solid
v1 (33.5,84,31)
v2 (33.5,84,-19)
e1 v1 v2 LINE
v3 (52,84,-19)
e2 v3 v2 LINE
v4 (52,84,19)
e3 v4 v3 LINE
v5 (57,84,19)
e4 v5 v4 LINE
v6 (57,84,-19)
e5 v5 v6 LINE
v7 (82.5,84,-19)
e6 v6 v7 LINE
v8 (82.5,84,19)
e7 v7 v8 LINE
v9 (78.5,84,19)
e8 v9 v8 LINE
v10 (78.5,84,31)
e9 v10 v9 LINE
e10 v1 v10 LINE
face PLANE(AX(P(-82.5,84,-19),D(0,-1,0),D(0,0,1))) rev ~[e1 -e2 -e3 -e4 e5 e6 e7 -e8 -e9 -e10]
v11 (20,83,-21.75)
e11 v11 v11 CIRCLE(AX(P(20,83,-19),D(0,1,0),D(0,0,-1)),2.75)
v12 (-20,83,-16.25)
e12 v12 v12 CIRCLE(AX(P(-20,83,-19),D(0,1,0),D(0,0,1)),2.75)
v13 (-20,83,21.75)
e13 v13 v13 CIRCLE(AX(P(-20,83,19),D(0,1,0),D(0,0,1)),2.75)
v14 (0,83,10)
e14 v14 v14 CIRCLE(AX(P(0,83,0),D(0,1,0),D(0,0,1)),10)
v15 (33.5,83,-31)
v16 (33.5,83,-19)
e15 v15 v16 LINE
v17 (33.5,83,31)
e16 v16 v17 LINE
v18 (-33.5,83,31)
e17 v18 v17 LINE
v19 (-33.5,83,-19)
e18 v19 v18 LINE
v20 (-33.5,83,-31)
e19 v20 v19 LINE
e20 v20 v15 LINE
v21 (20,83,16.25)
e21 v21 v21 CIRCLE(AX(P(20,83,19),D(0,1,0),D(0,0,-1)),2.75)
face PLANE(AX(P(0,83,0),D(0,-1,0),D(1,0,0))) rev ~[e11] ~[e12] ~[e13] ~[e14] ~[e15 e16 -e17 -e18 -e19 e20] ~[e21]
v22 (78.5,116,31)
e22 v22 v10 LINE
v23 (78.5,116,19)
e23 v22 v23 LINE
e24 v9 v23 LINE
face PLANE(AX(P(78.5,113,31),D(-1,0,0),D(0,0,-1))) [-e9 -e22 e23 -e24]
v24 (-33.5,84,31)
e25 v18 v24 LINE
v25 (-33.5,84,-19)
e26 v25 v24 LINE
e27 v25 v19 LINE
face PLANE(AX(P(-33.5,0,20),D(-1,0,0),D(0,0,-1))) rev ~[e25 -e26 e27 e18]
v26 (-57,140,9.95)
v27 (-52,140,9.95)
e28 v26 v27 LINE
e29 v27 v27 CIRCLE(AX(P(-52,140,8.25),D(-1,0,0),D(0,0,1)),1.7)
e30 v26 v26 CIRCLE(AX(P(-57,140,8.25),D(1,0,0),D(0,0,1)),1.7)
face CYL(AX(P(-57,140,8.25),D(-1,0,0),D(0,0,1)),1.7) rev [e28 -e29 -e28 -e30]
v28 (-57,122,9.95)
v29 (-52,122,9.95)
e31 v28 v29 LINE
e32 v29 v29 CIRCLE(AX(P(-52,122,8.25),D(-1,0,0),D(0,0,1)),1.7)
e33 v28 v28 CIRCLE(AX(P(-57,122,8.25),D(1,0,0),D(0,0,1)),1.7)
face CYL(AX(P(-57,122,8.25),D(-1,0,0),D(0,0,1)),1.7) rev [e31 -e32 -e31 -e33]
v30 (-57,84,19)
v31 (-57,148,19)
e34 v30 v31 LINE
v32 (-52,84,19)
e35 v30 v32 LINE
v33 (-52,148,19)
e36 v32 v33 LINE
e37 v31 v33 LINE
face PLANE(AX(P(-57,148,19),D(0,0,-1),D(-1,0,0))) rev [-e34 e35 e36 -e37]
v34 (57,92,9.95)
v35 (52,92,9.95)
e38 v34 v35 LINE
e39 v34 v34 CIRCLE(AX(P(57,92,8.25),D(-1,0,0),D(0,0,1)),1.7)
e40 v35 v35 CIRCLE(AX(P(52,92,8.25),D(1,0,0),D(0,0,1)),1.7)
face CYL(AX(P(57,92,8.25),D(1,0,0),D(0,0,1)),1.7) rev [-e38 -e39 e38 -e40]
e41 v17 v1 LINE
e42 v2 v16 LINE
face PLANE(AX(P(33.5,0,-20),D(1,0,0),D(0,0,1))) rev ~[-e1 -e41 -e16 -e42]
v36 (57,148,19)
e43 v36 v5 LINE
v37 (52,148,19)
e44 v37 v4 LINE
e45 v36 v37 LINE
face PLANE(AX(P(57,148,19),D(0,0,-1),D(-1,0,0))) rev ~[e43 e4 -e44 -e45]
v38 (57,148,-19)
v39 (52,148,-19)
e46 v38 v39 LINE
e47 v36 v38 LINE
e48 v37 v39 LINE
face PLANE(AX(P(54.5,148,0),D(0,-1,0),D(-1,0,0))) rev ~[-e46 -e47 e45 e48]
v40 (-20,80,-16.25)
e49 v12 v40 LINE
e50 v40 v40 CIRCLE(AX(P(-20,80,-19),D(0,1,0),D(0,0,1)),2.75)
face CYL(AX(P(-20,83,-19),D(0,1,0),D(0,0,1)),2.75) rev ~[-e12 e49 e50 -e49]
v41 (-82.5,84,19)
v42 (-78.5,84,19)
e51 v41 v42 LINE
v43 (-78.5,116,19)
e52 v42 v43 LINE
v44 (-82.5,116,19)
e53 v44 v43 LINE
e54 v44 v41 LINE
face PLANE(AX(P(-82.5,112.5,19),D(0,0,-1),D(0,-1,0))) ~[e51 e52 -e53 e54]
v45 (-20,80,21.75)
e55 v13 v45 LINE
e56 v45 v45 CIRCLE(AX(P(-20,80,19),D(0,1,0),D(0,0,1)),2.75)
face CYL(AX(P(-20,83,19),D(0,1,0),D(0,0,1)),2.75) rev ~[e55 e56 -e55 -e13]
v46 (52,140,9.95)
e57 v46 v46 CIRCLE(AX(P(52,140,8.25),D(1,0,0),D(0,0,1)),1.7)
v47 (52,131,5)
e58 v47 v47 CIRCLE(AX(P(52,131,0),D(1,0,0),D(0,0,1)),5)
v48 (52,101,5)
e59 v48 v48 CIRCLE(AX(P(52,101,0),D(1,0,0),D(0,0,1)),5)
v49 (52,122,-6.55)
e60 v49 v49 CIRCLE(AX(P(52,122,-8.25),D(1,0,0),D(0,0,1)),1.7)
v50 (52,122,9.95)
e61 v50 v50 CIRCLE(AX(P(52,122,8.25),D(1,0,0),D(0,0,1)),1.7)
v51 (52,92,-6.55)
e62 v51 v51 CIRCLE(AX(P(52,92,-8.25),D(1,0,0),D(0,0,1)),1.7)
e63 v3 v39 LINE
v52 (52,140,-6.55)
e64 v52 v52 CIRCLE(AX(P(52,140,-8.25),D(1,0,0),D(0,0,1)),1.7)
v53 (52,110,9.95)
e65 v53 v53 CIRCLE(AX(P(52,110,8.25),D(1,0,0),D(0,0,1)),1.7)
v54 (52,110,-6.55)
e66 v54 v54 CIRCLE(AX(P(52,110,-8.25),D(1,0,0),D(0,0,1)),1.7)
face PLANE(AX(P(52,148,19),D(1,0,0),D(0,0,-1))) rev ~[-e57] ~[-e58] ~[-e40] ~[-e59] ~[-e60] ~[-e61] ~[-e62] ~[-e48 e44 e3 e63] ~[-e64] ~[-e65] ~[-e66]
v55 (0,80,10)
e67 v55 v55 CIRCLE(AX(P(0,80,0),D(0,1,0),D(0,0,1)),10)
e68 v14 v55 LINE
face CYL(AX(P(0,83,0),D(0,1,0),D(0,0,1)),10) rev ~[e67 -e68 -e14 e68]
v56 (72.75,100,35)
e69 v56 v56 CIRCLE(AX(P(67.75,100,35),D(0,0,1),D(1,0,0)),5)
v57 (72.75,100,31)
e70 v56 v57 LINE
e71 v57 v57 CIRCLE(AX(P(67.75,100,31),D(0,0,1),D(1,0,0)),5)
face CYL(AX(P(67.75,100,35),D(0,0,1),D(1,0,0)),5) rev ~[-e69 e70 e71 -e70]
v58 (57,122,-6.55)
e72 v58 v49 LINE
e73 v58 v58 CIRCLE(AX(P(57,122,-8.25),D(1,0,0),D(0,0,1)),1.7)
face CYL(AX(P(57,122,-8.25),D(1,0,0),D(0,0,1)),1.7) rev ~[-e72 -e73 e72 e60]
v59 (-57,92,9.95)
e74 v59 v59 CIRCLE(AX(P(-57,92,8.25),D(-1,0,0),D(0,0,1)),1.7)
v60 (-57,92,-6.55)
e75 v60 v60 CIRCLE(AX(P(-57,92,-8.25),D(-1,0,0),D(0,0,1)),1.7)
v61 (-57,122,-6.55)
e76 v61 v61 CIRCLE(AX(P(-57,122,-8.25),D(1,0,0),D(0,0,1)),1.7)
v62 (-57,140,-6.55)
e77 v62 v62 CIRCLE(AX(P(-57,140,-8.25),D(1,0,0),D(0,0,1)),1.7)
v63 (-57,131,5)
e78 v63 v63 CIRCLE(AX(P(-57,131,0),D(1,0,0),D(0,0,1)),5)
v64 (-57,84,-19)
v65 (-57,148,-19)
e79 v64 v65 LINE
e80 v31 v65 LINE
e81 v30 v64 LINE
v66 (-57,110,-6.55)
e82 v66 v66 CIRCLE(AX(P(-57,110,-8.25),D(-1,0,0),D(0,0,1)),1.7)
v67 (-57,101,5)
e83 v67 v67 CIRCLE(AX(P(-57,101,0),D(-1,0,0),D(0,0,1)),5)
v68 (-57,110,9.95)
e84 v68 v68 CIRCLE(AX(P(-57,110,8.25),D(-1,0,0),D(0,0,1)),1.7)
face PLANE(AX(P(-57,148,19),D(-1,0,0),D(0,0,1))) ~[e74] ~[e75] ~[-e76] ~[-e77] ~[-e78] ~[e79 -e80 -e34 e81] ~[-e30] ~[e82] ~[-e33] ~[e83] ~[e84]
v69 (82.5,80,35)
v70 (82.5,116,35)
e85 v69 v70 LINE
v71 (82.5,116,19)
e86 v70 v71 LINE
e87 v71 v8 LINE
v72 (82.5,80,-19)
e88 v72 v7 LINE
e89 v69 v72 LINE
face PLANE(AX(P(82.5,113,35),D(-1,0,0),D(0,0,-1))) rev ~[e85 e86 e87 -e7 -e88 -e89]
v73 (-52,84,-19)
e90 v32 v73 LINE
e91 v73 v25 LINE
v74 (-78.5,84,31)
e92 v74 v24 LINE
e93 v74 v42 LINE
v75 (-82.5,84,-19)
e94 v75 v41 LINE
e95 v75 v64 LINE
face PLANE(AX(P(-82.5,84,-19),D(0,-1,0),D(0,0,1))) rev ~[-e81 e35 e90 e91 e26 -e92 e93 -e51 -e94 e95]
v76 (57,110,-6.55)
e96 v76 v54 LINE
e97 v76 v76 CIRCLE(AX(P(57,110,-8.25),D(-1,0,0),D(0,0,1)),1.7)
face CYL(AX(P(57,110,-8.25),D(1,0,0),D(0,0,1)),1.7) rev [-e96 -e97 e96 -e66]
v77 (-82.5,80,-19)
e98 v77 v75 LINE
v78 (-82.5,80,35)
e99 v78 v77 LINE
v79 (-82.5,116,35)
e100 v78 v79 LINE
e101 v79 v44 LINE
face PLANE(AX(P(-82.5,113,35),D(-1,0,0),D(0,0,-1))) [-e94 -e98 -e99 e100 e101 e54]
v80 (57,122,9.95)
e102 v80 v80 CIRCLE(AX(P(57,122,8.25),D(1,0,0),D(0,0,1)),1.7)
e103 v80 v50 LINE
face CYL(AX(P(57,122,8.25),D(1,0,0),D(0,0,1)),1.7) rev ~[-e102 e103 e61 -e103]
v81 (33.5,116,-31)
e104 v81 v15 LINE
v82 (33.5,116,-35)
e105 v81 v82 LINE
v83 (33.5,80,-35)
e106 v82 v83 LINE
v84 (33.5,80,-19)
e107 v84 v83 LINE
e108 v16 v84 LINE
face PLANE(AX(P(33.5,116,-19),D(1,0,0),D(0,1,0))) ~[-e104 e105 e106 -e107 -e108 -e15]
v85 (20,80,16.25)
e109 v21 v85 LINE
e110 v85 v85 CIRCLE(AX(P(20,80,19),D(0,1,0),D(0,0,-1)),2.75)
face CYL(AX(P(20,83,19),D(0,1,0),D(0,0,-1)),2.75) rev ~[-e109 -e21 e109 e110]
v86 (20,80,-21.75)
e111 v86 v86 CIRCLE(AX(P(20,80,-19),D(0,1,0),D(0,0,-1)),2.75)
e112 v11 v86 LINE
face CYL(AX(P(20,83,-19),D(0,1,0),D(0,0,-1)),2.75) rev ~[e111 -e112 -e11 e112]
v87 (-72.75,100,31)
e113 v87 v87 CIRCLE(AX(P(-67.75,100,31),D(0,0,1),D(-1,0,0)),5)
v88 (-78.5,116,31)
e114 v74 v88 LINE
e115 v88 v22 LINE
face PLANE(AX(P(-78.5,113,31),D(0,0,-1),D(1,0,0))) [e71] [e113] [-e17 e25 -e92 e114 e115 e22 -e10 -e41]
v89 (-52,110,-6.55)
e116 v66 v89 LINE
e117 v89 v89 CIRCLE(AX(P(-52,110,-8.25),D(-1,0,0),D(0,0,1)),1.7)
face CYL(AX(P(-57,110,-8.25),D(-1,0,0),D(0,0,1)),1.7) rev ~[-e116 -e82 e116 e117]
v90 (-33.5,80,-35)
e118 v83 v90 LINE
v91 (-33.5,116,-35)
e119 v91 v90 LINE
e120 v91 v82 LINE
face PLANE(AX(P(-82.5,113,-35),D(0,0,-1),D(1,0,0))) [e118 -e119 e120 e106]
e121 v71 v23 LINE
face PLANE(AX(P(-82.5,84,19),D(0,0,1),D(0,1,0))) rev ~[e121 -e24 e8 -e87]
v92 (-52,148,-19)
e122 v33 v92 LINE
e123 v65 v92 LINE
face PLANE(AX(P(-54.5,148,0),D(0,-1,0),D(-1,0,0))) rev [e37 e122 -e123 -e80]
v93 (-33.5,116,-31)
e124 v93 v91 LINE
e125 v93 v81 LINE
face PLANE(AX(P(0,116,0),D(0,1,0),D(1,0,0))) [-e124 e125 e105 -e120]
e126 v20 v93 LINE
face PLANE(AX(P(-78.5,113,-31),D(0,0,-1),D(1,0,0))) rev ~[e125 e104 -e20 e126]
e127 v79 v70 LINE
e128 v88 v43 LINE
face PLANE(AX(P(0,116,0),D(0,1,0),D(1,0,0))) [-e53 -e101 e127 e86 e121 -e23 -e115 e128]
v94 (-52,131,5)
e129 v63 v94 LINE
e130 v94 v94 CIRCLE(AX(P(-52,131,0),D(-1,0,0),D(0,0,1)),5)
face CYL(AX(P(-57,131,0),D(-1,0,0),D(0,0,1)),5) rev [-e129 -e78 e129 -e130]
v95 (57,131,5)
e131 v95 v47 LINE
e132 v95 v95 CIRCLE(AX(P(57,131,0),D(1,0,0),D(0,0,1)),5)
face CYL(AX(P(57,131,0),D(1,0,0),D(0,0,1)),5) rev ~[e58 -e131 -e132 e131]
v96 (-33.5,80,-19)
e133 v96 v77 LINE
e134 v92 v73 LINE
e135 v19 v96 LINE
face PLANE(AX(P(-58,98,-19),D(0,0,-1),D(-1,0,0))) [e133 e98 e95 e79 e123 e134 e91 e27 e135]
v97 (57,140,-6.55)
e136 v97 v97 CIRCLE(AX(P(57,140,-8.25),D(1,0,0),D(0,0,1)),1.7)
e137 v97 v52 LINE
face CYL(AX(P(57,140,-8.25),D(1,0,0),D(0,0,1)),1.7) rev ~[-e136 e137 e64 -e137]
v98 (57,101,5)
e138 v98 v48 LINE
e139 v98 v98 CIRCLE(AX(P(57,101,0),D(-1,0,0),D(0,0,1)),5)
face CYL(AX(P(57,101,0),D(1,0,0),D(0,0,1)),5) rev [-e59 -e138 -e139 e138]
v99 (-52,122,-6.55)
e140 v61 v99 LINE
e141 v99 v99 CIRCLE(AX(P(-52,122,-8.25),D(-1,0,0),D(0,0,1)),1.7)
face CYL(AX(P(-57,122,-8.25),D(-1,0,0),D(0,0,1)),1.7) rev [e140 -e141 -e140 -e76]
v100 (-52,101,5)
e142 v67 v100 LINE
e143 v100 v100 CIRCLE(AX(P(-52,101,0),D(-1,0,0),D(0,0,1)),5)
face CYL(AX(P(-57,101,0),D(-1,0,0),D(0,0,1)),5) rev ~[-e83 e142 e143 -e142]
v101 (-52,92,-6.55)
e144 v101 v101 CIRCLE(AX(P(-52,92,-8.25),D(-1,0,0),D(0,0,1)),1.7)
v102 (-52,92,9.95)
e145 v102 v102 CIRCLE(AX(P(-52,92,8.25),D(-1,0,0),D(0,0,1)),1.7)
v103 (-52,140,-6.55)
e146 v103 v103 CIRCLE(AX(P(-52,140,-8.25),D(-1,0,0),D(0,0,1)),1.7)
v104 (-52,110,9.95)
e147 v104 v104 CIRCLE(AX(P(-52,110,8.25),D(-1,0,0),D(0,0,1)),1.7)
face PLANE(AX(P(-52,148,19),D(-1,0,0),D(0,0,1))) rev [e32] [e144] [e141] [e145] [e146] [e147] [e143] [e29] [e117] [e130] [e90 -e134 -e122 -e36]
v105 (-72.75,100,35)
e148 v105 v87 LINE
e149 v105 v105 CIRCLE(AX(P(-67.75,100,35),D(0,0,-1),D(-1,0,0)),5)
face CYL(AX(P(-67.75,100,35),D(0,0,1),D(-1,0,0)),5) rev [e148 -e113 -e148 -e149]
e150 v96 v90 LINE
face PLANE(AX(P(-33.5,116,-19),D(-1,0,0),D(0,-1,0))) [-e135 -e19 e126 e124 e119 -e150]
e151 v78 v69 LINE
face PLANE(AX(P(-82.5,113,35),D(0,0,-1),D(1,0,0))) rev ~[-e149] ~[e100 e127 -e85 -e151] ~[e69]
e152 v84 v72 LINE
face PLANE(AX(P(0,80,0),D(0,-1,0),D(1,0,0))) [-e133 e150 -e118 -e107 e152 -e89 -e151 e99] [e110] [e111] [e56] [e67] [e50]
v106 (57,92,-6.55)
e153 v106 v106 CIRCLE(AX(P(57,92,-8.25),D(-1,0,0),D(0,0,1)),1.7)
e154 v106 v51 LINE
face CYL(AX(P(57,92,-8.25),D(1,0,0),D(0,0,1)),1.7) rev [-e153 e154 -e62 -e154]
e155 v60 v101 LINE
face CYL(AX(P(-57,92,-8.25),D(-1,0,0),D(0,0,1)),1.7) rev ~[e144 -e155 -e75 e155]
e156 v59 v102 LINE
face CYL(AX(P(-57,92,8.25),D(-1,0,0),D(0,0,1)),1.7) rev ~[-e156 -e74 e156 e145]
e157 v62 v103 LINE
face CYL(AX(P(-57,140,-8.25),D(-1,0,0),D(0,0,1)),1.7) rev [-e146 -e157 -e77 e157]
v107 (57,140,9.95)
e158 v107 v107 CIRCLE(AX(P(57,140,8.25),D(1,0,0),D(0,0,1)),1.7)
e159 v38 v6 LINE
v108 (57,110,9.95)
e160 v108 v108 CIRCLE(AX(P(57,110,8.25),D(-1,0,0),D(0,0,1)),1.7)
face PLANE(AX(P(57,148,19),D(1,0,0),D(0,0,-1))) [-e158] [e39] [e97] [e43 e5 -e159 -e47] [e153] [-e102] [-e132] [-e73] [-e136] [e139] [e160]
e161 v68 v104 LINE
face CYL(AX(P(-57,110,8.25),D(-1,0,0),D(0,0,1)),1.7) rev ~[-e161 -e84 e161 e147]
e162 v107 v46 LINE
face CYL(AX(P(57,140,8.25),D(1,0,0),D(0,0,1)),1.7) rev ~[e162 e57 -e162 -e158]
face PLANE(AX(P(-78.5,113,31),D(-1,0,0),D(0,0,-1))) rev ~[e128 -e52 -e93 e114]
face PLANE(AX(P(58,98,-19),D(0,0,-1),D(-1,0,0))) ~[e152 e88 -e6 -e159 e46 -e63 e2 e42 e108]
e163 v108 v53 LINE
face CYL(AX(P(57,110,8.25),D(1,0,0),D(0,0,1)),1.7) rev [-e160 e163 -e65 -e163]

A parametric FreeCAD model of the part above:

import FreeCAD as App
import Part
import Sketcher

V = App.Vector


def add_polygon(sketch, points):
    """Adds a closed chain of lines whose ends are joined by coincident constraints."""
    first, n = sketch.GeometryCount, len(points)
    for a, b in zip(points, points[1:] + points[:1]):
        sketch.addGeometry(Part.LineSegment(App.Vector(*a, 0), App.Vector(*b, 0)), False)
    for i in range(n):
        sketch.addConstraint(Sketcher.Constraint("Coincident", first + i, 2, first + (i + 1) % n, 1))

doc = App.newDocument("Part")
params = doc.addObject("Spreadsheet::Sheet", "Params")
for row, (alias, value) in enumerate([
    ("sketch1_diameter", "10 mm"),
    ("sketch1_diameter2", "3.4 mm"),
    ("sketch1_width", "75 mm"),
    ("sketch1_width2", "10 mm"),
    ("sketch1_height", "40 mm"),
    ("pad1_length", "3 mm"),
    ("sketch2_width", "67 mm"),
    ("sketch2_height", "28 mm"),
    ("sketch3_width", "75 mm"),
    ("sketch3_width2", "67 mm"),
    ("sketch3_height", "70 mm"),
    ("sketch3_height2", "40 mm"),
    ("pad2_length", "110 mm"),
    ("pad2_length2", "3 mm"),
    ("sketch4_width", "67 mm"),
    ("sketch4_height", "11 mm"),
    ("sketch5_width", "37 mm"),
    ("sketch5_height", "70 mm"),
    ("pad3_length", "45 mm"),
    ("sketch6_width", "45 mm"),
    ("sketch6_height", "62 mm"),
    ("pocket3_length", "29 mm"),
    ("sketch7_width", "45 mm"),
    ("sketch7_height", "4 mm"),
    ("sketch8_height", "38 mm"),
    ("sketch8_width", "28.5 mm"),
    ("sketch9_width", "5 mm"),
    ("sketch9_height", "38 mm"),
    ("pad4_length", "32 mm"),
    ("sketch10_diameter", "10 mm"),
    ("sketch10_diameter2", "3.4 mm"),
    ("pocket6_length", "32 mm"),
    ("sketch11_width", "165 mm"),
    ("sketch11_width2", "157 mm"),
    ("sketch11_height", "70 mm"),
    ("sketch11_height2", "62 mm"),
    ("pad5_length", "3 mm"),
    ("sketch12_width", "20 mm"),
    ("sketch13_diameter", "10 mm"),
    ("sketch14_width", "5 mm"),
    ("sketch14_height", "38 mm"),
    ("pad6_length", "32 mm"),
    ("sketch15_diameter", "10 mm"),
    ("sketch15_diameter2", "3.4 mm"),
    ("pocket9_length", "32 mm"),
    ("sketch16_height", "38 mm"),
    ("sketch16_width", "3.5 mm"),
    ("pocket10_length", "10 mm"),
    ("sketch17_diameter", "2.4 mm"),
    ("pocket11_length", "10 mm"),
    ("sketch18_width", "10 mm"),
    ("sketch18_height", "80 mm"),
    ("sketch19_width", "55 mm"),
    ("sketch19_height", "80 mm"),
    ("sketch20_width", "67 mm"),
    ("sketch20_height", "62 mm"),
    ("pad7_length", "3 mm"),
    ("sketch21_diameter", "20 mm"),
    ("sketch21_diameter2", "5.5 mm"),
    ("sketch22_diameter", "10 mm"),
    ("sketch22_width", "49 mm"),
    ("sketch22_height", "36 mm"),
    ("pocket15_length", "16 mm"),
], start=1):
    params.set(f"A{row}", alias)
    params.set(f"B{row}", "=" + value)
    params.setAlias(f"B{row}", alias)

body = doc.addObject("PartDesign::Body", "Body")

sketch1 = body.newObject("Sketcher::SketchObject", "Sketch")
sketch1.AttachmentSupport = (doc.getObject("XZ_Plane"), [""])
sketch1.MapMode = "FlatFace"
add_polygon(sketch1, [(-37.5, -20), (-37.5, 20), (37.5, 20), (37.5, -20)])
sketch1.addGeometry(Part.Circle(V(-30, 8.2, 0), V(0, 0, 1), 1.7), False)
sketch1.addGeometry(Part.Circle(V(-12, 8.2, 0), V(0, 0, 1), 1.7), False)
sketch1.addGeometry(Part.Circle(V(12, 8.2, 0), V(0, 0, 1), 1.7), False)
sketch1.addGeometry(Part.Circle(V(30, 8.2, 0), V(0, 0, 1), 1.7), False)
sketch1.addGeometry(Part.Circle(V(-21, 0, 0), V(0, 0, 1), 5), False)
add_polygon(sketch1, [(5, 10), (-5, 10), (-5, -10), (5, -10)])
sketch1.addGeometry(Part.Circle(V(-30, -8.2, 0), V(0, 0, 1), 1.7), False)
sketch1.addGeometry(Part.Circle(V(-12, -8.2, 0), V(0, 0, 1), 1.7), False)
sketch1.addGeometry(Part.Circle(V(21, 0, 0), V(0, 0, 1), 5), False)
sketch1.addGeometry(Part.Circle(V(12, -8.2, 0), V(0, 0, 1), 1.7), False)
sketch1.addGeometry(Part.Circle(V(30, -8.2, 0), V(0, 0, 1), 1.7), False)
sketch1.addConstraint([
    Sketcher.Constraint("Vertical", 0),
    Sketcher.Constraint("Horizontal", 1),
    Sketcher.Constraint("Vertical", 2),
    Sketcher.Constraint("Horizontal", 3),
    Sketcher.Constraint("Horizontal", 9),
    Sketcher.Constraint("Vertical", 10),
    Sketcher.Constraint("Horizontal", 11),
    Sketcher.Constraint("Vertical", 12),
    Sketcher.Constraint("Equal", 4, 5),
    Sketcher.Constraint("Equal", 5, 6),
    Sketcher.Constraint("Equal", 6, 7),
    Sketcher.Constraint("Equal", 7, 13),
    Sketcher.Constraint("Equal", 13, 14),
    Sketcher.Constraint("Equal", 8, 15),
    Sketcher.Constraint("Equal", 14, 16),
    Sketcher.Constraint("Equal", 16, 17),
    Sketcher.Constraint("Symmetric", 7, 3, 13, 3, -1, 1),
    Sketcher.Constraint("Symmetric", 6, 3, 14, 3, -1, 1),
    Sketcher.Constraint("Symmetric", 8, 3, 15, 3, -1, 1),
    Sketcher.Constraint("Symmetric", 5, 3, 16, 3, -1, 1),
    Sketcher.Constraint("Symmetric", 4, 3, 17, 3, -1, 1),
    Sketcher.Constraint("Symmetric", 0, 2, 2, 2, -1, 1),
    Sketcher.Constraint("Symmetric", 9, 2, 11, 2, -1, 1),
    Sketcher.Constraint("Symmetric", 5, 3, 6, 3, -2),
    Sketcher.Constraint("Symmetric", 4, 3, 7, 3, -2),
    Sketcher.Constraint("PointOnObject", 8, 3, -1),
    Sketcher.Constraint("Horizontal", 4, 3, 5, 3),
    Sketcher.Constraint("Diameter", 8, 10.0),
    Sketcher.Constraint("Diameter", 4, 3.4),
    Sketcher.Constraint("DistanceX", 1, 1, 1, 2, 75.0),
    Sketcher.Constraint("DistanceX", 9, 2, 9, 1, 10.0),
    Sketcher.Constraint("DistanceY", 0, 1, 0, 2, 40.0),
    Sketcher.Constraint("DistanceY", 10, 2, 10, 1, 20.0),
    Sketcher.Constraint("DistanceX", 4, 3, -1, 1, 30.0),
    Sketcher.Constraint("DistanceX", 5, 3, -1, 1, 12.0),
    Sketcher.Constraint("DistanceX", 8, 3, -1, 1, 21.0),
    Sketcher.Constraint("DistanceY", 13, 3, 4, 3, 16.5),
])
sketch1.setExpression("Constraints[35]", "Params.sketch1_diameter")
sketch1.setExpression("Constraints[36]", "Params.sketch1_diameter2")
sketch1.setExpression("Constraints[37]", "Params.sketch1_width")
sketch1.setExpression("Constraints[38]", "Params.sketch1_width2")
sketch1.setExpression("Constraints[39]", "Params.sketch1_height")
pad1 = body.newObject("PartDesign::Pad", "Pad")
pad1.Profile = sketch1
pad1.setExpression("Length", "Params.pad1_length")
pad1.Reversed = True

sketch2 = body.newObject("Sketcher::SketchObject", "Sketch001")
sketch2.AttachmentSupport = (doc.getObject("XZ_Plane"), [""])
sketch2.MapMode = "FlatFace"
sketch2.AttachmentOffset = App.Placement(V(0, 0, -3), App.Rotation())
add_polygon(sketch2, [(-34, -14), (-34, 14), (34, 14), (34, -14)])
sketch2.addConstraint([
    Sketcher.Constraint("Vertical", 0),
    Sketcher.Constraint("Horizontal", 1),
    Sketcher.Constraint("Vertical", 2),
    Sketcher.Constraint("Horizontal", 3),
    Sketcher.Constraint("Symmetric", 0, 2, 2, 2, -1, 1),
    Sketcher.Constraint("DistanceX", 1, 1, 1, 2, 67.0),
    Sketcher.Constraint("DistanceY", 0, 1, 0, 2, 28.0),
])
sketch2.setExpression("Constraints[9]", "Params.sketch2_width")
sketch2.setExpression("Constraints[10]", "Params.sketch2_height")
pocket1 = body.newObject("PartDesign::Pocket", "Pocket")
pocket1.Profile = sketch2
pocket1.Type = "ThroughAll"
pocket1.Midplane = True

sketch3 = body.newObject("Sketcher::SketchObject", "Sketch002")
sketch3.AttachmentSupport = (doc.getObject("XZ_Plane"), [""])
sketch3.MapMode = "FlatFace"
sketch3.AttachmentOffset = App.Placement(V(0, 0, -3), App.Rotation())
add_polygon(sketch3, [(38, 35), (38, -35), (-38, -35), (-38, 35)])
add_polygon(sketch3, [(-34, -20), (34, -20), (34, 20), (-34, 20)])
sketch3.addConstraint([
    Sketcher.Constraint("Vertical", 0),
    Sketcher.Constraint("Horizontal", 1),
    Sketcher.Constraint("Vertical", 2),
    Sketcher.Constraint("Horizontal", 3),
    Sketcher.Constraint("Horizontal", 4),
    Sketcher.Constraint("Vertical", 5),
    Sketcher.Constraint("Horizontal", 6),
    Sketcher.Constraint("Vertical", 7),
    Sketcher.Constraint("Symmetric", 0, 2, 2, 2, -1, 1),
    Sketcher.Constraint("Symmetric", 4, 2, 6, 2, -1, 1),
    Sketcher.Constraint("DistanceX", 1, 2, 1, 1, 75.0),
    Sketcher.Constraint("DistanceX", 4, 1, 4, 2, 67.0),
    Sketcher.Constraint("DistanceY", 0, 2, 0, 1, 70.0),
    Sketcher.Constraint("DistanceY", 5, 1, 5, 2, 40.0),
])
sketch3.setExpression("Constraints[18]", "Params.sketch3_width")
sketch3.setExpression("Constraints[19]", "Params.sketch3_width2")
sketch3.setExpression("Constraints[20]", "Params.sketch3_height")
sketch3.setExpression("Constraints[21]", "Params.sketch3_height2")
pad2 = body.newObject("PartDesign::Pad", "Pad001")
pad2.Profile = sketch3
pad2.Type = "TwoLengths"
pad2.setExpression("Length", "Params.pad2_length")
pad2.setExpression("Length2", "Params.pad2_length2")
pad2.Reversed = True

sketch4 = body.newObject("Sketcher::SketchObject", "Sketch003")
sketch4.AttachmentSupport = (doc.getObject("XZ_Plane"), [""])
sketch4.MapMode = "FlatFace"
sketch4.AttachmentOffset = App.Placement(V(0, 0, -3), App.Rotation())
add_polygon(sketch4, [(-34, 20), (-34, 31), (34, 31), (34, 20)])
add_polygon(sketch4, [(-34, -31), (-34, -20), (34, -20), (34, -31)])
sketch4.addConstraint([
    Sketcher.Constraint("Vertical", 0),
    Sketcher.Constraint("Horizontal", 1),
    Sketcher.Constraint("Vertical", 2),
    Sketcher.Constraint("Horizontal", 3),
    Sketcher.Constraint("Vertical", 4),
    Sketcher.Constraint("Horizontal", 5),
    Sketcher.Constraint("Vertical", 6),
    Sketcher.Constraint("Horizontal", 7),
    Sketcher.Constraint("Symmetric", 2, 2, 4, 2, -1, 1),
    Sketcher.Constraint("Symmetric", 0, 2, 6, 2, -1, 1),
    Sketcher.Constraint("Vertical", 3, 2, 4, 2),
    Sketcher.Constraint("DistanceX", 1, 1, 1, 2, 67.0),
    Sketcher.Constraint("DistanceY", 0, 1, 0, 2, 11.0),
    Sketcher.Constraint("DistanceY", -1, 1, 0, 2, 31.0),
])
sketch4.setExpression("Constraints[19]", "Params.sketch4_width")
sketch4.setExpression("Constraints[20]", "Params.sketch4_height")
pocket2 = body.newObject("PartDesign::Pocket", "Pocket001")
pocket2.Profile = sketch4
pocket2.Type = "ThroughAll"

sketch5 = body.newObject("Sketcher::SketchObject", "Sketch004")
sketch5.AttachmentSupport = (doc.getObject("YZ_Plane"), [""])
sketch5.MapMode = "FlatFace"
sketch5.AttachmentOffset = App.Placement(V(0, 0, -37.5), App.Rotation())
add_polygon(sketch5, [(113, -35), (76, -35), (76, 35), (113, 35)])
sketch5.addConstraint([
    Sketcher.Constraint("Horizontal", 0),
    Sketcher.Constraint("Vertical", 1),
    Sketcher.Constraint("Horizontal", 2),
    Sketcher.Constraint("Vertical", 3),
    Sketcher.Constraint("DistanceX", 0, 2, 0, 1, 37.0),
    Sketcher.Constraint("DistanceY", 1, 1, 1, 2, 70.0),
    Sketcher.Constraint("DistanceX", -1, 1, 0, 2, 76.0),
    Sketcher.Constraint("DistanceY", 0, 2, -1, 1, 35.0),
])
sketch5.setExpression("Constraints[8]", "Params.sketch5_width")
sketch5.setExpression("Constraints[9]", "Params.sketch5_height")
pad3 = body.newObject("PartDesign::Pad", "Pad002")
pad3.Profile = sketch5
pad3.setExpression("Length", "Params.pad3_length")
pad3.Reversed = True
doc.recompute()

mirrored = body.newObject("PartDesign::Mirrored", "Mirrored")
mirrored.Originals = [pad3]
mirrored.MirrorPlane = (doc.getObject("YZ_Plane"), [""])
body.Tip = mirrored

sketch6 = body.newObject("Sketcher::SketchObject", "Sketch005")
sketch6.AttachmentSupport = (doc.getObject("XZ_Plane"), [""])
sketch6.MapMode = "FlatFace"
sketch6.AttachmentOffset = App.Placement(V(0, 0, -113), App.Rotation())
add_polygon(sketch6, [(-78, -31), (-78, 31), (-34, 31), (-34, -31)])
add_polygon(sketch6, [(34, -31), (34, 31), (78, 31), (78, -31)])
sketch6.addConstraint([
    Sketcher.Constraint("Vertical", 0),
    Sketcher.Constraint("Horizontal", 1),
    Sketcher.Constraint("Vertical", 2),
    Sketcher.Constraint("Horizontal", 3),
    Sketcher.Constraint("Vertical", 4),
    Sketcher.Constraint("Horizontal", 5),
    Sketcher.Constraint("Vertical", 6),
    Sketcher.Constraint("Horizontal", 7),
    Sketcher.Constraint("Symmetric", 2, 2, 4, 2, -1, 1),
    Sketcher.Constraint("Symmetric", 0, 2, 6, 2, -1, 1),
    Sketcher.Constraint("Horizontal", 1, 2, 4, 2),
    Sketcher.Constraint("DistanceX", 1, 1, 1, 2, 45.0),
    Sketcher.Constraint("DistanceY", 0, 1, 0, 2, 62.0),
    Sketcher.Constraint("DistanceX", 1, 2, 4, 2, 67.0),
])
sketch6.setExpression("Constraints[19]", "Params.sketch6_width")
sketch6.setExpression("Constraints[20]", "Params.sketch6_height")
pocket3 = body.newObject("PartDesign::Pocket", "Pocket002")
pocket3.Profile = sketch6
pocket3.setExpression("Length", "Params.pocket3_length")
pocket3.Reversed = True

sketch7 = body.newObject("Sketcher::SketchObject", "Sketch006")
sketch7.AttachmentSupport = (doc.getObject("XY_Plane"), [""])
sketch7.MapMode = "FlatFace"
sketch7.AttachmentOffset = App.Placement(V(0, 0, 35), App.Rotation())
add_polygon(sketch7, [(-82.5, 80), (-82.5, 76), (-37.5, 76), (-37.5, 80)])
add_polygon(sketch7, [(37.5, 80), (37.5, 76), (82.5, 76), (82.5, 80)])
sketch7.addConstraint([
    Sketcher.Constraint("Vertical", 0),
    Sketcher.Constraint("Horizontal", 1),
    Sketcher.Constraint("Vertical", 2),
    Sketcher.Constraint("Horizontal", 3),
    Sketcher.Constraint("Vertical", 4),
    Sketcher.Constraint("Horizontal", 5),
    Sketcher.Constraint("Vertical", 6),
    Sketcher.Constraint("Horizontal", 7),
    Sketcher.Constraint("Symmetric", 1, 2, 4, 2, -2),
    Sketcher.Constraint("Symmetric", 3, 2, 6, 2, -2),
    Sketcher.Constraint("DistanceX", 1, 1, 1, 2, 45.0),
    Sketcher.Constraint("DistanceY", 0, 2, 0, 1, 4.0),
    Sketcher.Constraint("DistanceY", -1, 1, 0, 2, 76.0),
    Sketcher.Constraint("DistanceX", 1, 2, 4, 2, 75.0),
])
sketch7.setExpression("Constraints[18]", "Params.sketch7_width")
sketch7.setExpression("Constraints[19]", "Params.sketch7_height")
pocket4 = body.newObject("PartDesign::Pocket", "Pocket003")
pocket4.Profile = sketch7
pocket4.Type = "ThroughAll"

sketch8 = body.newObject("Sketcher::SketchObject", "Sketch007")
sketch8.AttachmentSupport = (doc.getObject("YZ_Plane"), [""])
sketch8.MapMode = "FlatFace"
sketch8.AttachmentOffset = App.Placement(V(0, 0, -82.5), App.Rotation())
add_polygon(sketch8, [(112, -19), (84, -19), (84, 19), (112, 19)])
sketch8.addConstraint([
    Sketcher.Constraint("Horizontal", 0),
    Sketcher.Constraint("Vertical", 1),
    Sketcher.Constraint("Horizontal", 2),
    Sketcher.Constraint("Vertical", 3),
    Sketcher.Constraint("DistanceY", 1, 1, 1, 2, 38.0),
    Sketcher.Constraint("DistanceX", 0, 2, 0, 1, 28.5),
    Sketcher.Constraint("DistanceX", -1, 1, 0, 2, 84.0),
    Sketcher.Constraint("DistanceY", 0, 2, -1, 1, 19.0),
])
sketch8.setExpression("Constraints[8]", "Params.sketch8_height")
sketch8.setExpression("Constraints[9]", "Params.sketch8_width")
pocket5 = body.newObject("PartDesign::Pocket", "Pocket004")
pocket5.Profile = sketch8
pocket5.Type = "ThroughAll"
pocket5.Reversed = True

sketch9 = body.newObject("Sketcher::SketchObject", "Sketch008")
sketch9.AttachmentSupport = (doc.getObject("XZ_Plane"), [""])
sketch9.MapMode = "FlatFace"
sketch9.AttachmentOffset = App.Placement(V(0, 0, -84), App.Rotation())
add_polygon(sketch9, [(-57, -19), (-57, 19), (-52, 19), (-52, -19)])
sketch9.addConstraint([
    Sketcher.Constraint("Vertical", 0),
    Sketcher.Constraint("Horizontal", 1),
    Sketcher.Constraint("Vertical", 2),
    Sketcher.Constraint("Horizontal", 3),
    Sketcher.Constraint("DistanceX", 1, 1, 1, 2, 5.0),
    Sketcher.Constraint("DistanceY", 0, 1, 0, 2, 38.0),
    Sketcher.Constraint("DistanceX", 0, 2, -1, 1, 57.0),
    Sketcher.Constraint("DistanceY", -1, 1, 0, 2, 19.0),
])
sketch9.setExpression("Constraints[8]", "Params.sketch9_width")
sketch9.setExpression("Constraints[9]", "Params.sketch9_height")
pad4 = body.newObject("PartDesign::Pad", "Pad003")
pad4.Profile = sketch9
pad4.setExpression("Length", "Params.pad4_length")
pad4.Reversed = True

sketch10 = body.newObject("Sketcher::SketchObject", "Sketch009")
sketch10.AttachmentSupport = (doc.getObject("YZ_Plane"), [""])
sketch10.MapMode = "FlatFace"
sketch10.AttachmentOffset = App.Placement(V(0, 0, -57), App.Rotation())
sketch10.addGeometry([
    Part.Circle(V(101, 0, 0), V(0, 0, 1), 5),
    Part.Circle(V(110, -8.2, 0), V(0, 0, 1), 1.7),
    Part.Circle(V(110, 8.2, 0), V(0, 0, 1), 1.7),
    Part.Circle(V(92, 8.2, 0), V(0, 0, 1), 1.7),
    Part.Circle(V(92, -8.2, 0), V(0, 0, 1), 1.7),
], False)
sketch10.addConstraint([
    Sketcher.Constraint("Equal", 1, 2),
    Sketcher.Constraint("Equal", 2, 3),
    Sketcher.Constraint("Equal", 3, 4),
    Sketcher.Constraint("Symmetric", 1, 3, 2, 3, -1),
    Sketcher.Constraint("Symmetric", 3, 3, 4, 3, -1),
    Sketcher.Constraint("PointOnObject", 0, 3, -1),
    Sketcher.Constraint("Horizontal", 2, 3, 3, 3),
    Sketcher.Constraint("Diameter", 0, 10.0),
    Sketcher.Constraint("Diameter", 1, 3.4),
    Sketcher.Constraint("DistanceX", -1, 1, 0, 3, 101.0),
    Sketcher.Constraint("DistanceX", -1, 1, 1, 3, 110.0),
    Sketcher.Constraint("DistanceX", -1, 1, 3, 3, 92.0),
    Sketcher.Constraint("DistanceY", 1, 3, 2, 3, 16.5),
])
sketch10.setExpression("Constraints[7]", "Params.sketch10_diameter")
sketch10.setExpression("Constraints[8]", "Params.sketch10_diameter2")
pocket6 = body.newObject("PartDesign::Pocket", "Pocket005")
pocket6.Profile = sketch10
pocket6.setExpression("Length", "Params.pocket6_length")
pocket6.Reversed = True
doc.recompute()

mirrored2 = body.newObject("PartDesign::Mirrored", "Mirrored001")
mirrored2.Originals = [pad4, pocket6]
mirrored2.MirrorPlane = (doc.getObject("YZ_Plane"), [""])
body.Tip = mirrored2

sketch11 = body.newObject("Sketcher::SketchObject", "Sketch010")
sketch11.AttachmentSupport = (doc.getObject("XZ_Plane"), [""])
sketch11.MapMode = "FlatFace"
sketch11.AttachmentOffset = App.Placement(V(0, 0, -113), App.Rotation())
add_polygon(sketch11, [(-82, -35), (-82, 35), (82, 35), (82, -35)])
add_polygon(sketch11, [(78, 31), (-78, 31), (-78, -31), (78, -31)])
sketch11.addConstraint([
    Sketcher.Constraint("Vertical", 0),
    Sketcher.Constraint("Horizontal", 1),
    Sketcher.Constraint("Vertical", 2),
    Sketcher.Constraint("Horizontal", 3),
    Sketcher.Constraint("Horizontal", 4),
    Sketcher.Constraint("Vertical", 5),
    Sketcher.Constraint("Horizontal", 6),
    Sketcher.Constraint("Vertical", 7),
    Sketcher.Constraint("Symmetric", 0, 2, 2, 2, -1, 1),
    Sketcher.Constraint("Symmetric", 4, 2, 6, 2, -1, 1),
    Sketcher.Constraint("DistanceX", 1, 1, 1, 2, 165.0),
    Sketcher.Constraint("DistanceX", 4, 2, 4, 1, 157.0),
    Sketcher.Constraint("DistanceY", 0, 1, 0, 2, 70.0),
    Sketcher.Constraint("DistanceY", 5, 2, 5, 1, 62.0),
])
sketch11.setExpression("Constraints[18]", "Params.sketch11_width")
sketch11.setExpression("Constraints[19]", "Params.sketch11_width2")
sketch11.setExpression("Constraints[20]", "Params.sketch11_height")
sketch11.setExpression("Constraints[21]", "Params.sketch11_height2")
pad5 = body.newObject("PartDesign::Pad", "Pad004")
pad5.Profile = sketch11
pad5.setExpression("Length", "Params.pad5_length")
pad5.Reversed = True

sketch12 = body.newObject("Sketcher::SketchObject", "Sketch011")
sketch12.AttachmentSupport = (doc.getObject("XY_Plane"), [""])
sketch12.MapMode = "FlatFace"
sketch12.AttachmentOffset = App.Placement(V(0, 0, 35), App.Rotation())
add_polygon(sketch12, [(-10, 14), (-10, 9.2), (10, 9.2), (10, 14)])
sketch12.addConstraint([
    Sketcher.Constraint("Vertical", 0),
    Sketcher.Constraint("Horizontal", 1),
    Sketcher.Constraint("Vertical", 2),
    Sketcher.Constraint("Horizontal", 3),
    Sketcher.Constraint("DistanceX", 1, 1, 1, 2, 20.0),
    Sketcher.Constraint("DistanceX", 0, 2, -1, 1, 10.0),
    Sketcher.Constraint("DistanceY", 0, 2, 0, 1, 4.820648),
    Sketcher.Constraint("DistanceY", -1, 1, 0, 2, 9.225787),
])
sketch12.setExpression("Constraints[8]", "Params.sketch12_width")
pocket7 = body.newObject("PartDesign::Pocket", "Pocket006")
pocket7.Profile = sketch12
pocket7.Type = "ThroughAll"

sketch13 = body.newObject("Sketcher::SketchObject", "Sketch012")
sketch13.AttachmentSupport = (doc.getObject("XY_Plane"), [""])
sketch13.MapMode = "FlatFace"
sketch13.AttachmentOffset = App.Placement(V(0, 0, 35), App.Rotation())
sketch13.addGeometry(Part.Circle(V(68, 100, 0), V(0, 0, 1), 5), False)
sketch13.addConstraint([
    Sketcher.Constraint("Diameter", 0, 10.0),
    Sketcher.Constraint("DistanceY", -1, 1, 0, 3, 100.0),
    Sketcher.Constraint("DistanceX", -1, 1, 0, 3, 67.75),
])
sketch13.setExpression("Constraints[0]", "Params.sketch13_diameter")
pocket8 = body.newObject("PartDesign::Pocket", "Pocket007")
pocket8.Profile = sketch13
pocket8.Type = "ThroughAll"
doc.recompute()

mirrored3 = body.newObject("PartDesign::Mirrored", "Mirrored002")
mirrored3.Originals = [pocket8]
mirrored3.MirrorPlane = (doc.getObject("YZ_Plane"), [""])
body.Tip = mirrored3
doc.recompute()

datumplane = body.newObject("PartDesign::Plane", "DatumPlane")
datumplane.AttachmentSupport = (doc.getObject("XZ_Plane"), [""])
datumplane.MapMode = "FlatFace"
datumplane.AttachmentOffset = App.Placement(V(0, 0, -116), App.Rotation())
mirrored4 = body.newObject("PartDesign::Mirrored", "Mirrored003")
mirrored4.Originals = [pad4, pocket6]
mirrored4.MirrorPlane = (datumplane, [""])
body.Tip = mirrored4

sketch14 = body.newObject("Sketcher::SketchObject", "Sketch013")
sketch14.AttachmentSupport = (doc.getObject("XZ_Plane"), [""])
sketch14.MapMode = "FlatFace"
sketch14.AttachmentOffset = App.Placement(V(0, 0, -148), App.Rotation())
add_polygon(sketch14, [(57, -19), (57, 19), (52, 19), (52, -19)])
sketch14.addConstraint([
    Sketcher.Constraint("Vertical", 0),
    Sketcher.Constraint("Horizontal", 1),
    Sketcher.Constraint("Vertical", 2),
    Sketcher.Constraint("Horizontal", 3),
    Sketcher.Constraint("DistanceX", 1, 2, 1, 1, 5.0),
    Sketcher.Constraint("DistanceY", 0, 1, 0, 2, 38.0),
    Sketcher.Constraint("DistanceX", -1, 1, 0, 2, 57.0),
    Sketcher.Constraint("DistanceY", -1, 1, 0, 2, 19.0),
])
sketch14.setExpression("Constraints[8]", "Params.sketch14_width")
sketch14.setExpression("Constraints[9]", "Params.sketch14_height")
pad6 = body.newObject("PartDesign::Pad", "Pad005")
pad6.Profile = sketch14
pad6.setExpression("Length", "Params.pad6_length")

sketch15 = body.newObject("Sketcher::SketchObject", "Sketch014")
sketch15.AttachmentSupport = (doc.getObject("YZ_Plane"), [""])
sketch15.MapMode = "FlatFace"
sketch15.AttachmentOffset = App.Placement(V(0, 0, 57), App.Rotation())
sketch15.addGeometry([
    Part.Circle(V(131, 0, 0), V(0, 0, 1), 5),
    Part.Circle(V(122, -8.2, 0), V(0, 0, 1), 1.7),
    Part.Circle(V(122, 8.2, 0), V(0, 0, 1), 1.7),
    Part.Circle(V(140, 8.2, 0), V(0, 0, 1), 1.7),
    Part.Circle(V(140, -8.2, 0), V(0, 0, 1), 1.7),
], False)
sketch15.addConstraint([
    Sketcher.Constraint("Equal", 1, 2),
    Sketcher.Constraint("Equal", 2, 3),
    Sketcher.Constraint("Equal", 3, 4),
    Sketcher.Constraint("Symmetric", 1, 3, 2, 3, -1),
    Sketcher.Constraint("Symmetric", 3, 3, 4, 3, -1),
    Sketcher.Constraint("PointOnObject", 0, 3, -1),
    Sketcher.Constraint("Horizontal", 2, 3, 3, 3),
    Sketcher.Constraint("Diameter", 0, 10.0),
    Sketcher.Constraint("Diameter", 1, 3.4),
    Sketcher.Constraint("DistanceX", -1, 1, 0, 3, 131.0),
    Sketcher.Constraint("DistanceX", -1, 1, 1, 3, 122.0),
    Sketcher.Constraint("DistanceX", -1, 1, 3, 3, 140.0),
    Sketcher.Constraint("DistanceY", 1, 3, 2, 3, 16.5),
])
sketch15.setExpression("Constraints[7]", "Params.sketch15_diameter")
sketch15.setExpression("Constraints[8]", "Params.sketch15_diameter2")
pocket9 = body.newObject("PartDesign::Pocket", "Pocket008")
pocket9.Profile = sketch15
pocket9.setExpression("Length", "Params.pocket9_length")

sketch16 = body.newObject("Sketcher::SketchObject", "Sketch015")
sketch16.AttachmentSupport = (doc.getObject("YZ_Plane"), [""])
sketch16.MapMode = "FlatFace"
sketch16.AttachmentOffset = App.Placement(V(0, 0, 82.5), App.Rotation())
add_polygon(sketch16, [(116, 19), (112.5, 19), (112.5, -19), (116, -19)])
sketch16.addConstraint([
    Sketcher.Constraint("Horizontal", 0),
    Sketcher.Constraint("Vertical", 1),
    Sketcher.Constraint("Horizontal", 2),
    Sketcher.Constraint("Vertical", 3),
    Sketcher.Constraint("DistanceY", 1, 2, 1, 1, 38.0),
    Sketcher.Constraint("DistanceX", 0, 2, 0, 1, 3.5),
    Sketcher.Constraint("DistanceY", -1, 1, 0, 2, 19.0),
    Sketcher.Constraint("DistanceX", -1, 1, 2, 2, 116.0),
])
sketch16.setExpression("Constraints[8]", "Params.sketch16_height")
sketch16.setExpression("Constraints[9]", "Params.sketch16_width")
pocket10 = body.newObject("PartDesign::Pocket", "Pocket009")
pocket10.Profile = sketch16
pocket10.setExpression("Length", "Params.pocket10_length")
doc.recompute()

mirrored5 = body.newObject("PartDesign::Mirrored", "Mirrored004")
mirrored5.Originals = [pocket10]
mirrored5.MirrorPlane = (doc.getObject("YZ_Plane"), [""])
body.Tip = mirrored5

sketch17 = body.newObject("Sketcher::SketchObject", "Sketch016")
sketch17.AttachmentSupport = (doc.getObject("XZ_Plane"), [""])
sketch17.MapMode = "FlatFace"
sketch17.AttachmentOffset = App.Placement(V(0, 0, -3), App.Rotation())
sketch17.addGeometry([
    Part.Circle(V(-24, -17.5, 0), V(0, 0, 1), 1.2),
    Part.Circle(V(-12, -17.5, 0), V(0, 0, 1), 1.2),
    Part.Circle(V(12, -17.5, 0), V(0, 0, 1), 1.2),
    Part.Circle(V(-24, 17.5, 0), V(0, 0, 1), 1.2),
    Part.Circle(V(-12, 17.5, 0), V(0, 0, 1), 1.2),
    Part.Circle(V(24, -17.5, 0), V(0, 0, 1), 1.2),
    Part.Circle(V(12, 17.5, 0), V(0, 0, 1), 1.2),
    Part.Circle(V(24, 17.5, 0), V(0, 0, 1), 1.2),
], False)
sketch17.addConstraint([
    Sketcher.Constraint("Equal", 0, 1),
    Sketcher.Constraint("Equal", 1, 2),
    Sketcher.Constraint("Equal", 2, 3),
    Sketcher.Constraint("Equal", 3, 4),
    Sketcher.Constraint("Equal", 4, 5),
    Sketcher.Constraint("Equal", 5, 6),
    Sketcher.Constraint("Equal", 6, 7),
    Sketcher.Constraint("Symmetric", 2, 3, 4, 3, -1, 1),
    Sketcher.Constraint("Symmetric", 3, 3, 5, 3, -1, 1),
    Sketcher.Constraint("Symmetric", 1, 3, 6, 3, -1, 1),
    Sketcher.Constraint("Symmetric", 0, 3, 7, 3, -1, 1),
    Sketcher.Constraint("Symmetric", 1, 3, 2, 3, -2),
    Sketcher.Constraint("Symmetric", 0, 3, 5, 3, -2),
    Sketcher.Constraint("Horizontal", 0, 3, 1, 3),
    Sketcher.Constraint("Diameter", 0, 2.4),
    Sketcher.Constraint("DistanceX", 0, 3, -1, 1, 24.0),
    Sketcher.Constraint("DistanceX", 1, 3, -1, 1, 12.0),
    Sketcher.Constraint("DistanceY", 0, 3, 3, 3, 35.0),
])
sketch17.setExpression("Constraints[14]", "Params.sketch17_diameter")
pocket11 = body.newObject("PartDesign::Pocket", "Pocket010")
pocket11.Profile = sketch17
pocket11.setExpression("Length", "Params.pocket11_length")
pocket11.Reversed = True

sketch18 = body.newObject("Sketcher::SketchObject", "Sketch017")
sketch18.AttachmentSupport = (doc.getObject("XY_Plane"), [""])
sketch18.MapMode = "FlatFace"
sketch18.AttachmentOffset = App.Placement(V(0, 0, 35), App.Rotation())
add_polygon(sketch18, [(28, 80), (28, 0), (38, 0), (38, 80)])
add_polygon(sketch18, [(-38, 80), (-38, 0), (-28, 0), (-28, 80)])
sketch18.addConstraint([
    Sketcher.Constraint("Vertical", 0),
    Sketcher.Constraint("Horizontal", 1),
    Sketcher.Constraint("Vertical", 2),
    Sketcher.Constraint("Horizontal", 3),
    Sketcher.Constraint("Vertical", 4),
    Sketcher.Constraint("Horizontal", 5),
    Sketcher.Constraint("Vertical", 6),
    Sketcher.Constraint("Horizontal", 7),
    Sketcher.Constraint("Symmetric", 1, 2, 4, 2, -1, 1),
    Sketcher.Constraint("Symmetric", 0, 2, 5, 2, -2),
    Sketcher.Constraint("Horizontal", 3, 2, 6, 2),
    Sketcher.Constraint("DistanceX", 1, 1, 1, 2, 10.0),
    Sketcher.Constraint("DistanceY", 0, 2, 0, 1, 80.0),
    Sketcher.Constraint("DistanceX", 4, 2, 0, 2, 65.0),
])
sketch18.setExpression("Constraints[19]", "Params.sketch18_width")
sketch18.setExpression("Constraints[20]", "Params.sketch18_height")
pocket12 = body.newObject("PartDesign::Pocket", "Pocket011")
pocket12.Profile = sketch18
pocket12.Type = "ThroughAll"

sketch19 = body.newObject("Sketcher::SketchObject", "Sketch018")
sketch19.AttachmentSupport = (doc.getObject("XY_Plane"), [""])
sketch19.MapMode = "FlatFace"
sketch19.AttachmentOffset = App.Placement(V(0, 0, 35), App.Rotation())
add_polygon(sketch19, [(-28, 80), (-28, 0), (28, 0), (28, 80)])
sketch19.addConstraint([
    Sketcher.Constraint("Vertical", 0),
    Sketcher.Constraint("Horizontal", 1),
    Sketcher.Constraint("Vertical", 2),
    Sketcher.Constraint("Horizontal", 3),
    Sketcher.Constraint("Symmetric", 0, 2, 1, 2, -1, 1),
    Sketcher.Constraint("DistanceX", 1, 1, 1, 2, 55.0),
    Sketcher.Constraint("DistanceY", 0, 2, 0, 1, 80.0),
])
sketch19.setExpression("Constraints[9]", "Params.sketch19_width")
sketch19.setExpression("Constraints[10]", "Params.sketch19_height")
pocket13 = body.newObject("PartDesign::Pocket", "Pocket012")
pocket13.Profile = sketch19
pocket13.Type = "ThroughAll"

sketch20 = body.newObject("Sketcher::SketchObject", "Sketch019")
sketch20.AttachmentSupport = (doc.getObject("XZ_Plane"), [""])
sketch20.MapMode = "FlatFace"
sketch20.AttachmentOffset = App.Placement(V(0, 0, -80), App.Rotation())
add_polygon(sketch20, [(-34, 31), (-34, -31), (34, -31), (34, 31)])
sketch20.addConstraint([
    Sketcher.Constraint("Vertical", 0),
    Sketcher.Constraint("Horizontal", 1),
    Sketcher.Constraint("Vertical", 2),
    Sketcher.Constraint("Horizontal", 3),
    Sketcher.Constraint("Symmetric", 0, 2, 2, 2, -1, 1),
    Sketcher.Constraint("DistanceX", 1, 1, 1, 2, 67.0),
    Sketcher.Constraint("DistanceY", 0, 2, 0, 1, 62.0),
])
sketch20.setExpression("Constraints[9]", "Params.sketch20_width")
sketch20.setExpression("Constraints[10]", "Params.sketch20_height")
pad7 = body.newObject("PartDesign::Pad", "Pad006")
pad7.Profile = sketch20
pad7.setExpression("Length", "Params.pad7_length")
pad7.Reversed = True

sketch21 = body.newObject("Sketcher::SketchObject", "Sketch020")
sketch21.AttachmentSupport = (doc.getObject("XZ_Plane"), [""])
sketch21.MapMode = "FlatFace"
sketch21.AttachmentOffset = App.Placement(V(0, 0, -83), App.Rotation())
sketch21.addGeometry([
    Part.Circle(V(0, 0, 0), V(0, 0, 1), 10),
    Part.Circle(V(-20, -19, 0), V(0, 0, 1), 2.8),
    Part.Circle(V(-20, 19, 0), V(0, 0, 1), 2.8),
    Part.Circle(V(20, 19, 0), V(0, 0, 1), 2.8),
    Part.Circle(V(20, -19, 0), V(0, 0, 1), 2.8),
], False)
sketch21.addConstraint([
    Sketcher.Constraint("Coincident", 0, 3, -1, 1),
    Sketcher.Constraint("Equal", 1, 2),
    Sketcher.Constraint("Equal", 2, 3),
    Sketcher.Constraint("Equal", 3, 4),
    Sketcher.Constraint("Symmetric", 1, 3, 3, 3, -1, 1),
    Sketcher.Constraint("Symmetric", 2, 3, 4, 3, -1, 1),
    Sketcher.Constraint("Symmetric", 2, 3, 3, 3, -2),
    Sketcher.Constraint("Diameter", 0, 20.0),
    Sketcher.Constraint("Diameter", 1, 5.5),
    Sketcher.Constraint("DistanceX", 1, 3, -1, 1, 20.0),
    Sketcher.Constraint("DistanceY", 1, 3, -1, 1, 19.0),
])
sketch21.setExpression("Constraints[7]", "Params.sketch21_diameter")
sketch21.setExpression("Constraints[8]", "Params.sketch21_diameter2")
pocket14 = body.newObject("PartDesign::Pocket", "Pocket013")
pocket14.Profile = sketch21
pocket14.Type = "ThroughAll"
pocket14.Reversed = True

sketch22 = body.newObject("Sketcher::SketchObject", "Sketch021")
sketch22.AttachmentSupport = (doc.getObject("XY_Plane"), [""])
sketch22.MapMode = "FlatFace"
sketch22.AttachmentOffset = App.Placement(V(0, 0, -19), App.Rotation())
add_polygon(sketch22, [(-34, 116), (-34, 80), (-82, 80), (-82, 116)])
sketch22.addGeometry(Part.Circle(V(-68, 100, 0), V(0, 0, 1), 5), False)
sketch22.addConstraint([
    Sketcher.Constraint("Vertical", 0),
    Sketcher.Constraint("Horizontal", 1),
    Sketcher.Constraint("Vertical", 2),
    Sketcher.Constraint("Horizontal", 3),
    Sketcher.Constraint("Diameter", 4, 10.0),
    Sketcher.Constraint("DistanceX", 1, 2, 1, 1, 49.0),
    Sketcher.Constraint("DistanceY", 0, 2, 0, 1, 36.0),
    Sketcher.Constraint("DistanceY", -1, 1, 4, 3, 100.0),
    Sketcher.Constraint("DistanceY", -1, 1, 0, 2, 80.0),
    Sketcher.Constraint("DistanceX", 0, 2, -1, 1, 33.5),
    Sketcher.Constraint("DistanceX", 4, 3, -1, 1, 67.75),
])
sketch22.setExpression("Constraints[8]", "Params.sketch22_diameter")
sketch22.setExpression("Constraints[9]", "Params.sketch22_width")
sketch22.setExpression("Constraints[10]", "Params.sketch22_height")
pocket15 = body.newObject("PartDesign::Pocket", "Pocket014")
pocket15.Profile = sketch22
pocket15.setExpression("Length", "Params.pocket15_length")
doc.recompute()

mirrored6 = body.newObject("PartDesign::Mirrored", "Mirrored005")
mirrored6.Originals = [pocket15]
mirrored6.MirrorPlane = (doc.getObject("YZ_Plane"), [""])
body.Tip = mirrored6

doc.recompute()
